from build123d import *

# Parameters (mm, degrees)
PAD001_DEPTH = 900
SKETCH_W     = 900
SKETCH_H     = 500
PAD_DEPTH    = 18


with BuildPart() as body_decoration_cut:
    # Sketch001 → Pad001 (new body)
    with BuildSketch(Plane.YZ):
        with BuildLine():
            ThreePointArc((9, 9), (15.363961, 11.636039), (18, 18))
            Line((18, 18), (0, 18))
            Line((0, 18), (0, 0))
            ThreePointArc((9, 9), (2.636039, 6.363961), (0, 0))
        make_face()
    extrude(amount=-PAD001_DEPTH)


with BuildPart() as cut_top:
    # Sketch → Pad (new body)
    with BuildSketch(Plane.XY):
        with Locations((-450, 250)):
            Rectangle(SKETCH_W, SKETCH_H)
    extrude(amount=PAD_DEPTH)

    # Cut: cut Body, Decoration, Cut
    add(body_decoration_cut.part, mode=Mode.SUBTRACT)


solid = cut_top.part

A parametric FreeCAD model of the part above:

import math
import FreeCAD as App
import Part
import Sketcher

V = App.Vector


def add_polygon(sketch, points):
    """Adds a closed chain of lines whose ends are joined by coincident constraints."""
    first, n = sketch.GeometryCount, len(points)
    for a, b in zip(points, points[1:] + points[:1]):
        sketch.addGeometry(Part.LineSegment(App.Vector(*a, 0), App.Vector(*b, 0)), False)
    for i in range(n):
        sketch.addConstraint(Sketcher.Constraint("Coincident", first + i, 2, first + (i + 1) % n, 1))

doc = App.newDocument("Part")
body = doc.addObject("PartDesign::Body", "Body")

# Sketch on YZ plane
sketch1 = body.newObject("Sketcher::SketchObject", "Sketch")
sketch1.AttachmentSupport = (doc.getObject("YZ_Plane"), [""])
sketch1.MapMode = "FlatFace"
sketch1.addGeometry([
    Part.ArcOfCircle(Part.Circle(V(9, 18, 0), V(0, 0, 1), 9), math.radians(-89.999999), math.radians(-0.000001)),
    Part.LineSegment(V(18, 18, 0), V(0, 18, 0)),
    Part.LineSegment(V(0, 18, 0), V(0, 0, 0)),
    Part.ArcOfCircle(Part.Circle(V(9, 0, 0), V(0, 0, 1), 9), math.radians(90.000001), math.radians(179.999999)),
], False)
sketch1.addConstraint([
    Sketcher.Constraint("Coincident", 0, 2, 1, 1),
    Sketcher.Constraint("Coincident", 1, 2, 2, 1),
    Sketcher.Constraint("Tangent", 2, 2, 3, 2),
    Sketcher.Constraint("Tangent", 3, 1, 0, 1),
    Sketcher.Constraint("Horizontal", 1),
    Sketcher.Constraint("Vertical", 2),
    Sketcher.Constraint("Coincident", 2, 2, -1, 1),
    Sketcher.Constraint("Equal", 0, 3),
    Sketcher.Constraint("Vertical", 0, 3, 3, 3),
    Sketcher.Constraint("Equal", 1, 2),
    Sketcher.Constraint("Radius", 0, 9.0),
])
pad1 = body.newObject("PartDesign::Pad", "Pad")
pad1.Profile = sketch1
pad1.Length = 900
pad1.Reversed = True
body2 = doc.addObject("PartDesign::Body", "Body001")

# Sketch on XY plane
sketch2 = body2.newObject("Sketcher::SketchObject", "Sketch001")
sketch2.AttachmentSupport = (doc.getObject("XY_Plane001"), [""])
sketch2.MapMode = "FlatFace"
add_polygon(sketch2, [(-900, 500), (-900, 0), (0, 0), (0, 500)])  # lines 0-3
sketch2.addConstraint([
    Sketcher.Constraint("Vertical", 0),
    Sketcher.Constraint("Horizontal", 1),
    Sketcher.Constraint("Vertical", 2),
    Sketcher.Constraint("Horizontal", 3),
    Sketcher.Constraint("Coincident", 1, 2, -1, 1),
    Sketcher.Constraint("DistanceX", 1, 1, 1, 2, 900.0),
    Sketcher.Constraint("DistanceY", 0, 2, 0, 1, 500.0),
])
pad2 = body2.newObject("PartDesign::Pad", "Pad001")
pad2.Profile = sketch2
pad2.Length = 18
doc.recompute()

boolean = body2.newObject("PartDesign::Boolean", "Boolean")
boolean.Type = "Cut"
boolean.addObjects([body])

doc.recompute()
